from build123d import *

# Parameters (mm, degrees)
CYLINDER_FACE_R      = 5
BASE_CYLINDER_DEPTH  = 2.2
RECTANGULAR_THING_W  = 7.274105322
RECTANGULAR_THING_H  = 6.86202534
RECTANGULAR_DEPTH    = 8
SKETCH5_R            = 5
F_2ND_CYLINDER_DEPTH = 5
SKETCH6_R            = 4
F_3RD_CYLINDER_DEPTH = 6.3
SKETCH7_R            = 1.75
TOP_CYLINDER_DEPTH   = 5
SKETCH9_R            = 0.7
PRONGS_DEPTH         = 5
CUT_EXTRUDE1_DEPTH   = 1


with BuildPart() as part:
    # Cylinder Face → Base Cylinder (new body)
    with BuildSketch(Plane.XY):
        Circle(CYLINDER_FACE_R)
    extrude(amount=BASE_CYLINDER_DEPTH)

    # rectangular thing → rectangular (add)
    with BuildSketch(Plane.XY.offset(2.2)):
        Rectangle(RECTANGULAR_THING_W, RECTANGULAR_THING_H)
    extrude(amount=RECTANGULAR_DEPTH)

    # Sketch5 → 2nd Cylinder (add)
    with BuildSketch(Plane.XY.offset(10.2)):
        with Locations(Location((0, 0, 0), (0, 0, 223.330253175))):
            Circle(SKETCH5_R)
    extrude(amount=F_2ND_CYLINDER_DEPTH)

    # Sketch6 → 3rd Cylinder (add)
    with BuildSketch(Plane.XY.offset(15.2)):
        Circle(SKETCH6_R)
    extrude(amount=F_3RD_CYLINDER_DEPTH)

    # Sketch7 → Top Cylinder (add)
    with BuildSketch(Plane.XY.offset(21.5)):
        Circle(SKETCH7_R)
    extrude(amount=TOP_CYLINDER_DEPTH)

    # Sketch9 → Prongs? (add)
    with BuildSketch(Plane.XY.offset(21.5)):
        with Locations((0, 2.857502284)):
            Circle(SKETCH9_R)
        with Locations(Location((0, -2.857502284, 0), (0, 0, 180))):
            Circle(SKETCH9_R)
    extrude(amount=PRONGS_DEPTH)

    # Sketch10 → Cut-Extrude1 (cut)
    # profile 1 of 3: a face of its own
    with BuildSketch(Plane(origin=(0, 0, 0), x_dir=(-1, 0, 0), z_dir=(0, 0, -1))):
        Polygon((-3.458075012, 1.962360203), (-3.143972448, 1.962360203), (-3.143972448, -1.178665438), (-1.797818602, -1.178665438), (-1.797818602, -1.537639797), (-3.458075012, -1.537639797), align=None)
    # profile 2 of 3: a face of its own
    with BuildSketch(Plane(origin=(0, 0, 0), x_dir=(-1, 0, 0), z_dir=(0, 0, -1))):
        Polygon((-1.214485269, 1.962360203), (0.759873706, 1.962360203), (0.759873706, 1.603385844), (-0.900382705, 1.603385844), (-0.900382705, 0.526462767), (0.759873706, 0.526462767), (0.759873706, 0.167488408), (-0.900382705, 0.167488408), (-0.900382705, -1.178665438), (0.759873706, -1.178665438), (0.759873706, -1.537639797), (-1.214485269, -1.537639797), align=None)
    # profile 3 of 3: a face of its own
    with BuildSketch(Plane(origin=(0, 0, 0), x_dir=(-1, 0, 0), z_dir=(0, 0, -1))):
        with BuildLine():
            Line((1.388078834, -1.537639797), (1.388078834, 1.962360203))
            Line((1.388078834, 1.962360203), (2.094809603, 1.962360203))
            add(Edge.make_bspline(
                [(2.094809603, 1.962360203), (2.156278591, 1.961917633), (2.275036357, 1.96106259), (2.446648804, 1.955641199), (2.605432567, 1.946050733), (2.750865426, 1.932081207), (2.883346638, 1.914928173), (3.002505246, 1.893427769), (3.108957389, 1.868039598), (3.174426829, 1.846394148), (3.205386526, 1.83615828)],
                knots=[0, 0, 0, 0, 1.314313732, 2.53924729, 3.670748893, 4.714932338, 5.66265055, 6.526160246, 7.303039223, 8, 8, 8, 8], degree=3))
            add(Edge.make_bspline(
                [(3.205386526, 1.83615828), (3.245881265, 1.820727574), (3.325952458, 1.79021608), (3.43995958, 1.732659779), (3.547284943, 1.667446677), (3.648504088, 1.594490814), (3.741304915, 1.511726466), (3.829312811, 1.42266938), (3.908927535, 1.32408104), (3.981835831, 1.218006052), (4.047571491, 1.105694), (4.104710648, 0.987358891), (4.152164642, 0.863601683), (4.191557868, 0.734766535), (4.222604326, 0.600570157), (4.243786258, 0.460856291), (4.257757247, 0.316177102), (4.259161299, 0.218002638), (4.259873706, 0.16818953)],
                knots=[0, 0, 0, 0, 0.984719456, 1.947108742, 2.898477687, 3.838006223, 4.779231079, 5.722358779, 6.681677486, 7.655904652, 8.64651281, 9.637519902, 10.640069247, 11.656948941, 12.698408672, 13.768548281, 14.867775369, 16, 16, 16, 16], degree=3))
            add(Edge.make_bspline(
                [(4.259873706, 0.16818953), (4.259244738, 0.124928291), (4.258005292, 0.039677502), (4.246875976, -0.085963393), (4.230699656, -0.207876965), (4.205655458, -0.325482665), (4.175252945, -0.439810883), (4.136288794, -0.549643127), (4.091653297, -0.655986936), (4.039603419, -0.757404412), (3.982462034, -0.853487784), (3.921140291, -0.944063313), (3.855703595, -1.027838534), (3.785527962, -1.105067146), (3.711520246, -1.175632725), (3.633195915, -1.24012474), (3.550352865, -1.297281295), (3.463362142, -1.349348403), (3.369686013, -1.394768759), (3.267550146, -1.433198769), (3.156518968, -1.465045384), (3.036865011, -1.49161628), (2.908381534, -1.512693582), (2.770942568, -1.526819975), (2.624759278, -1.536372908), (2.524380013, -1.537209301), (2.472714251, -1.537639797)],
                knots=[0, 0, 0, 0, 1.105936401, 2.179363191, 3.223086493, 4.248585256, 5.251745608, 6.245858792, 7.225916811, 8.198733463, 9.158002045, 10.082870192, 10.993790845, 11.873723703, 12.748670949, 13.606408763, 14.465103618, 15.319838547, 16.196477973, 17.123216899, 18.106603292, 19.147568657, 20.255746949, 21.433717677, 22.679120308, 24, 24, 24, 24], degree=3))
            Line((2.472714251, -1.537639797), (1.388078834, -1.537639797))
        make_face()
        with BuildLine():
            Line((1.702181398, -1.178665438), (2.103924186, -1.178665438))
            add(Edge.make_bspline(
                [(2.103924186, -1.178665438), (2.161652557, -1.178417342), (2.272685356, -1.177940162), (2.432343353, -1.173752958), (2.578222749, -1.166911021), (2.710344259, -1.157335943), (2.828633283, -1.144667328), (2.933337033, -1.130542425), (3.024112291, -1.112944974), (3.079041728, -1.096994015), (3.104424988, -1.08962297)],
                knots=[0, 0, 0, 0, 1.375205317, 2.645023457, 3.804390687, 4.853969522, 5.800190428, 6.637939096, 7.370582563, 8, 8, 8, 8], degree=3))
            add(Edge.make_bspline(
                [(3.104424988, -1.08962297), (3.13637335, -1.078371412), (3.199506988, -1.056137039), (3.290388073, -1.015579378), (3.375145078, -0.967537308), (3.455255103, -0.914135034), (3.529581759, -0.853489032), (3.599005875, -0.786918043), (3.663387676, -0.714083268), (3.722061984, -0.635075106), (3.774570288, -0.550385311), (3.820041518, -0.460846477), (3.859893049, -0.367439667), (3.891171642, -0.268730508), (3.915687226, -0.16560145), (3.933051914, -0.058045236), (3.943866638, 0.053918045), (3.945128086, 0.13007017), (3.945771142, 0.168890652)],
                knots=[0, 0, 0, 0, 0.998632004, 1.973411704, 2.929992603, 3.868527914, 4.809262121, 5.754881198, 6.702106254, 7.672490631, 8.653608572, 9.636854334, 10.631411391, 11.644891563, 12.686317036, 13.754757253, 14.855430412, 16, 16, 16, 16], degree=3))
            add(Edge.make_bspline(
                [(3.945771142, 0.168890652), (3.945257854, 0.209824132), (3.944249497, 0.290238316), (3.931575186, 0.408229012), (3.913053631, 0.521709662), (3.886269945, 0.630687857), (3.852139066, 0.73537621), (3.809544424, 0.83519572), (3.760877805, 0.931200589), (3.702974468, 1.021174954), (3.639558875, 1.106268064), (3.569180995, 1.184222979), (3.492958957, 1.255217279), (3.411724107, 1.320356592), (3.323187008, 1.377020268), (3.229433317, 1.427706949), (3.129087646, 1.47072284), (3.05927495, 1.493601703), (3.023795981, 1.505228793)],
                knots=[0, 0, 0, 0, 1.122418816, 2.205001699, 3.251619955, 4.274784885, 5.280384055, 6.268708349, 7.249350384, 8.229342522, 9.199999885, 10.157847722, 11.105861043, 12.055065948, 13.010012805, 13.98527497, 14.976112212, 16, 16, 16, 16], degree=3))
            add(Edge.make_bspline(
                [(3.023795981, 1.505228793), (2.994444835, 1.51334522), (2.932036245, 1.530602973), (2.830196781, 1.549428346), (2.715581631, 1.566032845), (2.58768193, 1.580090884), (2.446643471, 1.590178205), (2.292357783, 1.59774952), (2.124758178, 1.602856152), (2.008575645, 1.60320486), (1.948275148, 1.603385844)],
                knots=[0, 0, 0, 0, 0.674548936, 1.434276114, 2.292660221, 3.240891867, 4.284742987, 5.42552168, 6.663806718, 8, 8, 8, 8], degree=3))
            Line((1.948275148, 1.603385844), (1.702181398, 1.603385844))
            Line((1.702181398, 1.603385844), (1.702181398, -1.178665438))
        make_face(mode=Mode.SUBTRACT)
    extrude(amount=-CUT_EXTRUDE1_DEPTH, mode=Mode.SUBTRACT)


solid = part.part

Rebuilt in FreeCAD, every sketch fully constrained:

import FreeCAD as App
import Part
import Sketcher

V = App.Vector

doc = App.newDocument("Part")
params = doc.addObject("Spreadsheet::Sheet", "Params")
for row, (alias, value) in enumerate([
    ("sketch1_diameter", "10 mm"),
    ("pad1_length", "2.2 mm"),
    ("pad2_length", "8 mm"),
    ("sketch3_diameter", "10 mm"),
    ("pad3_length", "5 mm"),
    ("sketch4_diameter", "8 mm"),
    ("pad4_length", "6.3 mm"),
    ("sketch5_diameter", "3.5 mm"),
    ("pad5_length", "5 mm"),
    ("sketch6_diameter", "1.4 mm"),
    ("pad6_length", "5 mm"),
    ("pocket1_length", "1 mm"),
], start=1):
    params.set(f"A{row}", alias)
    params.set(f"B{row}", "=" + value)
    params.setAlias(f"B{row}", alias)

body = doc.addObject("PartDesign::Body", "Body")

# Sketch on XY plane
sketch1 = doc.addObject("Sketcher::SketchObject", "Sketch")
body.addObject(sketch1)
sketch1.AttachmentSupport = (doc.XY_Plane, [""])
sketch1.MapMode = "FlatFace"
sketch1.addGeometry(Part.Circle(V(0, 0, 0), V(0, 0, 1), 5), False)
sketch1.addConstraint([
    Sketcher.Constraint("Coincident", 0, 3, -1, 1),
    Sketcher.Constraint("Diameter", 0, 10.0),
])
sketch1.setExpression("Constraints[1]", "Params.sketch1_diameter")
pad1 = doc.addObject("PartDesign::Pad", "Pad")
body.addObject(pad1)
pad1.Profile = sketch1
pad1.setExpression("Length", "Params.pad1_length")

# Sketch on XY plane
sketch2 = doc.addObject("Sketcher::SketchObject", "Sketch001")
body.addObject(sketch2)
sketch2.AttachmentSupport = (doc.XY_Plane, [""])
sketch2.MapMode = "FlatFace"
sketch2.AttachmentOffset = App.Placement(V(0, 0, 2.2), App.Rotation())
sketch2.addGeometry([
    Part.LineSegment(V(-4, 3, 0), V(-4, -3, 0)),
    Part.LineSegment(V(-4, -3, 0), V(4, -3, 0)),
    Part.LineSegment(V(4, -3, 0), V(4, 3, 0)),
    Part.LineSegment(V(4, 3, 0), V(-4, 3, 0)),
], False)
sketch2.addConstraint([
    Sketcher.Constraint("Coincident", 0, 2, 1, 1),
    Sketcher.Constraint("Coincident", 1, 2, 2, 1),
    Sketcher.Constraint("Coincident", 2, 2, 3, 1),
    Sketcher.Constraint("Coincident", 3, 2, 0, 1),
    Sketcher.Constraint("Vertical", 0),
    Sketcher.Constraint("Horizontal", 1),
    Sketcher.Constraint("Vertical", 2),
    Sketcher.Constraint("Horizontal", 3),
    Sketcher.Constraint("Symmetric", 0, 2, 2, 2, -1, 1),
    Sketcher.Constraint("DistanceX", 1, 1, 1, 2, 7.274105),
    Sketcher.Constraint("DistanceY", 0, 2, 0, 1, 6.862025),
])
pad2 = doc.addObject("PartDesign::Pad", "Pad001")
body.addObject(pad2)
pad2.Profile = sketch2
pad2.setExpression("Length", "Params.pad2_length")

# Sketch on XY plane
sketch3 = doc.addObject("Sketcher::SketchObject", "Sketch002")
body.addObject(sketch3)
sketch3.AttachmentSupport = (doc.XY_Plane, [""])
sketch3.MapMode = "FlatFace"
sketch3.AttachmentOffset = App.Placement(V(0, 0, 10.2), App.Rotation())
sketch3.addGeometry(Part.Circle(V(0, 0, 0), V(0, 0, 1), 5), False)
sketch3.addConstraint([
    Sketcher.Constraint("Coincident", 0, 3, -1, 1),
    Sketcher.Constraint("Diameter", 0, 10.0),
])
sketch3.setExpression("Constraints[1]", "Params.sketch3_diameter")
pad3 = doc.addObject("PartDesign::Pad", "Pad002")
body.addObject(pad3)
pad3.Profile = sketch3
pad3.setExpression("Length", "Params.pad3_length")

# Sketch on XY plane
sketch4 = doc.addObject("Sketcher::SketchObject", "Sketch003")
body.addObject(sketch4)
sketch4.AttachmentSupport = (doc.XY_Plane, [""])
sketch4.MapMode = "FlatFace"
sketch4.AttachmentOffset = App.Placement(V(0, 0, 15.2), App.Rotation())
sketch4.addGeometry(Part.Circle(V(0, 0, 0), V(0, 0, 1), 4), False)
sketch4.addConstraint([
    Sketcher.Constraint("Coincident", 0, 3, -1, 1),
    Sketcher.Constraint("Diameter", 0, 8.0),
])
sketch4.setExpression("Constraints[1]", "Params.sketch4_diameter")
pad4 = doc.addObject("PartDesign::Pad", "Pad003")
body.addObject(pad4)
pad4.Profile = sketch4
pad4.setExpression("Length", "Params.pad4_length")

# Sketch on XY plane
sketch5 = doc.addObject("Sketcher::SketchObject", "Sketch004")
body.addObject(sketch5)
sketch5.AttachmentSupport = (doc.XY_Plane, [""])
sketch5.MapMode = "FlatFace"
sketch5.AttachmentOffset = App.Placement(V(0, 0, 21.5), App.Rotation())
sketch5.addGeometry(Part.Circle(V(0, 0, 0), V(0, 0, 1), 1.8), False)
sketch5.addConstraint([
    Sketcher.Constraint("Coincident", 0, 3, -1, 1),
    Sketcher.Constraint("Diameter", 0, 3.5),
])
sketch5.setExpression("Constraints[1]", "Params.sketch5_diameter")
pad5 = doc.addObject("PartDesign::Pad", "Pad004")
body.addObject(pad5)
pad5.Profile = sketch5
pad5.setExpression("Length", "Params.pad5_length")

# Sketch on XY plane
sketch6 = doc.addObject("Sketcher::SketchObject", "Sketch005")
body.addObject(sketch6)
sketch6.AttachmentSupport = (doc.XY_Plane, [""])
sketch6.MapMode = "FlatFace"
sketch6.AttachmentOffset = App.Placement(V(0, 0, 21.5), App.Rotation())
sketch6.addGeometry([
    Part.Circle(V(0, 2.9, 0), V(0, 0, 1), 0.7),
    Part.Circle(V(0, -2.9, 0), V(0, 0, 1), 0.7),
], False)
sketch6.addConstraint([
    Sketcher.Constraint("Equal", 0, 1),
    Sketcher.Constraint("Symmetric", 0, 3, 1, 3, -1, 1),
    Sketcher.Constraint("PointOnObject", 0, 3, -2),
    Sketcher.Constraint("Diameter", 0, 1.4),
    Sketcher.Constraint("DistanceY", -1, 1, 0, 3, 2.857502),
])
sketch6.setExpression("Constraints[3]", "Params.sketch6_diameter")
pad6 = doc.addObject("PartDesign::Pad", "Pad005")
body.addObject(pad6)
pad6.Profile = sketch6
pad6.setExpression("Length", "Params.pad6_length")

# Sketch on XY plane
sketch7 = doc.addObject("Sketcher::SketchObject", "Sketch006")
body.addObject(sketch7)
sketch7.AttachmentSupport = (doc.XY_Plane, [""])
sketch7.MapMode = "FlatFace"
sketch7.addGeometry([
    Part.LineSegment(V(3.143972, 1.96236, 0), V(3.458075, 1.96236, 0)),  # 0
    Part.LineSegment(V(3.458075, 1.96236, 0), V(3.458075, -1.53764, 0)),  # 1
    Part.LineSegment(V(3.458075, -1.53764, 0), V(1.797819, -1.53764, 0)),  # 2
    Part.LineSegment(V(1.797819, -1.53764, 0), V(1.797819, -1.178665, 0)),  # 3
    Part.LineSegment(V(1.797819, -1.178665, 0), V(3.143972, -1.178665, 0)),  # 4
    Part.LineSegment(V(3.143972, -1.178665, 0), V(3.143972, 1.96236, 0)),  # 5
    Part.LineSegment(V(-0.759874, 1.96236, 0), V(1.214485, 1.96236, 0)),  # 6
    Part.LineSegment(V(1.214485, 1.96236, 0), V(1.214485, -1.53764, 0)),  # 7
    Part.LineSegment(V(1.214485, -1.53764, 0), V(-0.759874, -1.53764, 0)),  # 8
    Part.LineSegment(V(-0.759874, -1.53764, 0), V(-0.759874, -1.178665, 0)),  # 9
    Part.LineSegment(V(-0.759874, -1.178665, 0), V(0.900383, -1.178665, 0)),  # 10
    Part.LineSegment(V(0.900383, -1.178665, 0), V(0.900383, 0.167488, 0)),  # 11
    Part.LineSegment(V(0.900383, 0.167488, 0), V(-0.759874, 0.167488, 0)),  # 12
    Part.LineSegment(V(-0.759874, 0.167488, 0), V(-0.759874, 0.526463, 0)),  # 13
    Part.LineSegment(V(-0.759874, 0.526463, 0), V(0.900383, 0.526463, 0)),  # 14
    Part.LineSegment(V(0.900383, 0.526463, 0), V(0.900383, 1.603386, 0)),  # 15
    Part.LineSegment(V(0.900383, 1.603386, 0), V(-0.759874, 1.603386, 0)),  # 16
    Part.LineSegment(V(-0.759874, 1.603386, 0), V(-0.759874, 1.96236, 0)),  # 17
    Part.LineSegment(V(-1.388079, 1.96236, 0), V(-1.388079, -1.53764, 0)),  # 18
    Part.LineSegment(V(-1.388079, -1.53764, 0), V(-2.472714, -1.53764, 0)),  # 19
    Part.BSplineCurve([V(-4.259874, 0.16819, 0), V(-4.259245, 0.124928, 0), V(-4.258005, 0.039678, 0), V(-4.246876, -0.085963, 0), V(-4.2307, -0.207877, 0), V(-4.205655, -0.325483, 0), V(-4.175253, -0.439811, 0), V(-4.136289, -0.549643, 0), V(-4.091653, -0.655987, 0), V(-4.039603, -0.757404, 0), V(-3.982462, -0.853488, 0), V(-3.92114, -0.944063, 0), V(-3.855704, -1.027839, 0), V(-3.785528, -1.105067, 0), V(-3.71152, -1.175633, 0), V(-3.633196, -1.240125, 0), V(-3.550353, -1.297281, 0), V(-3.463362, -1.349348, 0), V(-3.369686, -1.394769, 0), V(-3.26755, -1.433199, 0), V(-3.156519, -1.465045, 0), V(-3.036865, -1.491616, 0), V(-2.908382, -1.512694, 0), V(-2.770943, -1.52682, 0), V(-2.624759, -1.536373, 0), V(-2.52438, -1.537209, 0), V(-2.472714, -1.53764, 0)], [4, 1, 1, 1, 1, 1, 1, 1, 1, 1, 1, 1, 1, 1, 1, 1, 1, 1, 1, 1, 1, 1, 1, 1, 4], [0, 1.105936401, 2.179363191, 3.223086493, 4.248585256, 5.251745608, 6.245858792, 7.225916811, 8.198733463, 9.158002045, 10.082870192, 10.993790845, 11.873723703, 12.748670949, 13.606408763, 14.465103618, 15.319838547, 16.196477973, 17.123216899, 18.106603292, 19.147568657, 20.255746949, 21.433717677, 22.679120308, 24], False, 3, [1, 1, 1, 1, 1, 1, 1, 1, 1, 1, 1, 1, 1, 1, 1, 1, 1, 1, 1, 1, 1, 1, 1, 1, 1, 1, 1], False),  # 20
    Part.BSplineCurve([V(-3.205387, 1.836158, 0), V(-3.245881, 1.820728, 0), V(-3.325952, 1.790216, 0), V(-3.43996, 1.73266, 0), V(-3.547285, 1.667447, 0), V(-3.648504, 1.594491, 0), V(-3.741305, 1.511726, 0), V(-3.829313, 1.422669, 0), V(-3.908928, 1.324081, 0), V(-3.981836, 1.218006, 0), V(-4.047571, 1.105694, 0), V(-4.104711, 0.987359, 0), V(-4.152165, 0.863602, 0), V(-4.191558, 0.734767, 0), V(-4.222604, 0.60057, 0), V(-4.243786, 0.460856, 0), V(-4.257757, 0.316177, 0), V(-4.259161, 0.218003, 0), V(-4.259874, 0.16819, 0)], [4, 1, 1, 1, 1, 1, 1, 1, 1, 1, 1, 1, 1, 1, 1, 1, 4], [0, 0.984719456, 1.947108742, 2.898477687, 3.838006223, 4.779231079, 5.722358779, 6.681677486, 7.655904652, 8.64651281, 9.637519902, 10.640069247, 11.656948941, 12.698408672, 13.768548281, 14.867775369, 16], False, 3, [1, 1, 1, 1, 1, 1, 1, 1, 1, 1, 1, 1, 1, 1, 1, 1, 1, 1, 1], False),  # 21
    Part.BSplineCurve([V(-2.09481, 1.96236, 0), V(-2.156279, 1.961918, 0), V(-2.275036, 1.961063, 0), V(-2.446649, 1.955641, 0), V(-2.605433, 1.946051, 0), V(-2.750865, 1.932081, 0), V(-2.883347, 1.914928, 0), V(-3.002505, 1.893428, 0), V(-3.108957, 1.86804, 0), V(-3.174427, 1.846394, 0), V(-3.205387, 1.836158, 0)], [4, 1, 1, 1, 1, 1, 1, 1, 4], [0, 1.314313732, 2.53924729, 3.670748893, 4.714932338, 5.66265055, 6.526160246, 7.303039223, 8], False, 3, [1, 1, 1, 1, 1, 1, 1, 1, 1, 1, 1], False),  # 22
    Part.LineSegment(V(-2.09481, 1.96236, 0), V(-1.388079, 1.96236, 0)),  # 23
    Part.LineSegment(V(-1.702181, -1.178665, 0), V(-1.702181, 1.603386, 0)),  # 24
    Part.LineSegment(V(-1.702181, 1.603386, 0), V(-1.948275, 1.603386, 0)),  # 25
    Part.BSplineCurve([V(-3.023796, 1.505229, 0), V(-2.994445, 1.513345, 0), V(-2.932036, 1.530603, 0), V(-2.830197, 1.549428, 0), V(-2.715582, 1.566033, 0), V(-2.587682, 1.580091, 0), V(-2.446643, 1.590178, 0), V(-2.292358, 1.59775, 0), V(-2.124758, 1.602856, 0), V(-2.008576, 1.603205, 0), V(-1.948275, 1.603386, 0)], [4, 1, 1, 1, 1, 1, 1, 1, 4], [0, 0.674548936, 1.434276114, 2.292660221, 3.240891867, 4.284742987, 5.42552168, 6.663806718, 8], False, 3, [1, 1, 1, 1, 1, 1, 1, 1, 1, 1, 1], False),  # 26
    Part.BSplineCurve([V(-3.945771, 0.168891, 0), V(-3.945258, 0.209824, 0), V(-3.944249, 0.290238, 0), V(-3.931575, 0.408229, 0), V(-3.913054, 0.52171, 0), V(-3.88627, 0.630688, 0), V(-3.852139, 0.735376, 0), V(-3.809544, 0.835196, 0), V(-3.760878, 0.931201, 0), V(-3.702974, 1.021175, 0), V(-3.639559, 1.106268, 0), V(-3.569181, 1.184223, 0), V(-3.492959, 1.255217, 0), V(-3.411724, 1.320357, 0), V(-3.323187, 1.37702, 0), V(-3.229433, 1.427707, 0), V(-3.129088, 1.470723, 0), V(-3.059275, 1.493602, 0), V(-3.023796, 1.505229, 0)], [4, 1, 1, 1, 1, 1, 1, 1, 1, 1, 1, 1, 1, 1, 1, 1, 4], [0, 1.122418816, 2.205001699, 3.251619955, 4.274784885, 5.280384055, 6.268708349, 7.249350384, 8.229342522, 9.199999885, 10.157847722, 11.105861043, 12.055065948, 13.010012805, 13.98527497, 14.976112212, 16], False, 3, [1, 1, 1, 1, 1, 1, 1, 1, 1, 1, 1, 1, 1, 1, 1, 1, 1, 1, 1], False),  # 27
    Part.BSplineCurve([V(-3.104425, -1.089623, 0), V(-3.136373, -1.078371, 0), V(-3.199507, -1.056137, 0), V(-3.290388, -1.015579, 0), V(-3.375145, -0.967537, 0), V(-3.455255, -0.914135, 0), V(-3.529582, -0.853489, 0), V(-3.599006, -0.786918, 0), V(-3.663388, -0.714083, 0), V(-3.722062, -0.635075, 0), V(-3.77457, -0.550385, 0), V(-3.820042, -0.460846, 0), V(-3.859893, -0.36744, 0), V(-3.891172, -0.268731, 0), V(-3.915687, -0.165601, 0), V(-3.933052, -0.058045, 0), V(-3.943867, 0.053918, 0), V(-3.945128, 0.13007, 0), V(-3.945771, 0.168891, 0)], [4, 1, 1, 1, 1, 1, 1, 1, 1, 1, 1, 1, 1, 1, 1, 1, 4], [0, 0.998632004, 1.973411704, 2.929992603, 3.868527914, 4.809262121, 5.754881198, 6.702106254, 7.672490631, 8.653608572, 9.636854334, 10.631411391, 11.644891563, 12.686317036, 13.754757253, 14.855430412, 16], False, 3, [1, 1, 1, 1, 1, 1, 1, 1, 1, 1, 1, 1, 1, 1, 1, 1, 1, 1, 1], False),  # 28
    Part.BSplineCurve([V(-2.103924, -1.178665, 0), V(-2.161653, -1.178417, 0), V(-2.272685, -1.17794, 0), V(-2.432343, -1.173753, 0), V(-2.578223, -1.166911, 0), V(-2.710344, -1.157336, 0), V(-2.828633, -1.144667, 0), V(-2.933337, -1.130542, 0), V(-3.024112, -1.112945, 0), V(-3.079042, -1.096994, 0), V(-3.104425, -1.089623, 0)], [4, 1, 1, 1, 1, 1, 1, 1, 4], [0, 1.375205317, 2.645023457, 3.804390687, 4.853969522, 5.800190428, 6.637939096, 7.370582563, 8], False, 3, [1, 1, 1, 1, 1, 1, 1, 1, 1, 1, 1], False),  # 29
    Part.LineSegment(V(-2.103924, -1.178665, 0), V(-1.702181, -1.178665, 0)),  # 30
], False)
sketch7.addConstraint([
    Sketcher.Constraint("Block", 20),
    Sketcher.Constraint("Block", 21),
    Sketcher.Constraint("Block", 22),
    Sketcher.Constraint("Block", 26),
    Sketcher.Constraint("Block", 27),
    Sketcher.Constraint("Block", 28),
    Sketcher.Constraint("Block", 29),
    Sketcher.Constraint("Coincident", 0, 2, 1, 1),
    Sketcher.Constraint("Coincident", 1, 2, 2, 1),
    Sketcher.Constraint("Coincident", 2, 2, 3, 1),
    Sketcher.Constraint("Coincident", 3, 2, 4, 1),
    Sketcher.Constraint("Coincident", 4, 2, 5, 1),
    Sketcher.Constraint("Coincident", 5, 2, 0, 1),
    Sketcher.Constraint("Coincident", 6, 2, 7, 1),
    Sketcher.Constraint("Coincident", 7, 2, 8, 1),
    Sketcher.Constraint("Coincident", 8, 2, 9, 1),
    Sketcher.Constraint("Coincident", 9, 2, 10, 1),
    Sketcher.Constraint("Coincident", 10, 2, 11, 1),
    Sketcher.Constraint("Coincident", 11, 2, 12, 1),
    Sketcher.Constraint("Coincident", 12, 2, 13, 1),
    Sketcher.Constraint("Coincident", 13, 2, 14, 1),
    Sketcher.Constraint("Coincident", 14, 2, 15, 1),
    Sketcher.Constraint("Coincident", 15, 2, 16, 1),
    Sketcher.Constraint("Coincident", 16, 2, 17, 1),
    Sketcher.Constraint("Coincident", 17, 2, 6, 1),
    Sketcher.Constraint("Coincident", 18, 2, 19, 1),
    Sketcher.Constraint("Coincident", 19, 2, 20, 2),
    Sketcher.Constraint("Coincident", 22, 1, 23, 1),
    Sketcher.Constraint("Coincident", 23, 2, 18, 1),
    Sketcher.Constraint("Coincident", 24, 2, 25, 1),
    Sketcher.Constraint("Coincident", 25, 2, 26, 2),
    Sketcher.Constraint("Coincident", 29, 1, 30, 1),
    Sketcher.Constraint("Coincident", 30, 2, 24, 1),
    Sketcher.Constraint("Horizontal", 0),
    Sketcher.Constraint("Vertical", 1),
    Sketcher.Constraint("Horizontal", 2),
    Sketcher.Constraint("Vertical", 3),
    Sketcher.Constraint("Horizontal", 4),
    Sketcher.Constraint("Vertical", 5),
    Sketcher.Constraint("Horizontal", 6),
    Sketcher.Constraint("Vertical", 7),
    Sketcher.Constraint("Horizontal", 8),
    Sketcher.Constraint("Vertical", 9),
    Sketcher.Constraint("Horizontal", 10),
    Sketcher.Constraint("Vertical", 11),
    Sketcher.Constraint("Horizontal", 12),
    Sketcher.Constraint("Vertical", 13),
    Sketcher.Constraint("Horizontal", 14),
    Sketcher.Constraint("Vertical", 15),
    Sketcher.Constraint("Horizontal", 16),
    Sketcher.Constraint("Vertical", 17),
    Sketcher.Constraint("Vertical", 18),
    Sketcher.Constraint("Horizontal", 19),
    Sketcher.Constraint("Horizontal", 23),
    Sketcher.Constraint("Vertical", 24),
    Sketcher.Constraint("Horizontal", 25),
    Sketcher.Constraint("Horizontal", 30),
    Sketcher.Constraint("Horizontal", 5, 2, 6, 2),
    Sketcher.Constraint("Horizontal", 2, 2, 7, 2),
    Sketcher.Constraint("Horizontal", 4, 2, 9, 2),
    Sketcher.Constraint("Horizontal", 8, 2, 18, 2),
    Sketcher.Constraint("Horizontal", 17, 2, 23, 2),
    Sketcher.Constraint("Horizontal", 16, 2, 24, 2),
    Sketcher.Constraint("Horizontal", 10, 2, 30, 2),
    Sketcher.Constraint("Vertical", 9, 2, 12, 2),
    Sketcher.Constraint("Vertical", 11, 2, 14, 2),
    Sketcher.Constraint("Vertical", 13, 2, 16, 2),
    Sketcher.Constraint("Equal", 2, 10),
    Sketcher.Constraint("Equal", 4, 11),
    Sketcher.Constraint("Equal", 9, 13),
    Sketcher.Constraint("DistanceX", 6, 1, 6, 2, 1.974359),
    Sketcher.Constraint("DistanceX", 23, 1, 23, 2, 0.706731),
    Sketcher.Constraint("DistanceX", 25, 2, 16, 2, 1.188401),
    Sketcher.Constraint("DistanceX", 0, 1, 0, 2, 0.314103),
    Sketcher.Constraint("DistanceX", 2, 2, 2, 1, 1.660256),
    Sketcher.Constraint("DistanceX", 25, 2, 25, 1, 0.246094),
    Sketcher.Constraint("DistanceX", -1, 1, 2, 2, 1.797819),
])
pocket1 = doc.addObject("PartDesign::Pocket", "Pocket")
body.addObject(pocket1)
pocket1.Profile = sketch7
pocket1.setExpression("Length", "Params.pocket1_length")
pocket1.Reversed = True

doc.recompute()
